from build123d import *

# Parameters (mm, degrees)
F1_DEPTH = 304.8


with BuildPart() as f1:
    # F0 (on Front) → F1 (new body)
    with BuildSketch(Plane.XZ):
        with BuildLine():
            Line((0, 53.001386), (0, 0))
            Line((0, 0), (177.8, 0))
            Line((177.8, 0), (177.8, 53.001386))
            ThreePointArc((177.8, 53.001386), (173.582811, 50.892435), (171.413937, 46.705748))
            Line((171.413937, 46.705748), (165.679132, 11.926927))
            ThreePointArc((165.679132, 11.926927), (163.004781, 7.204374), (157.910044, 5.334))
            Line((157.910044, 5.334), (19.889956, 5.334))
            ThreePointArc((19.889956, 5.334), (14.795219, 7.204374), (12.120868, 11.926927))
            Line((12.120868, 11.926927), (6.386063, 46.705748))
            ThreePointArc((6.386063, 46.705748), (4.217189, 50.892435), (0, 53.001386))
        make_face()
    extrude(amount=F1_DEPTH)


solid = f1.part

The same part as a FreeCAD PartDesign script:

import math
import FreeCAD as App
import Part
import Sketcher
from FreeCAD import Vector
Q = App.Units.Quantity

doc = App.newDocument("Part")
body = doc.addObject("PartDesign::Body", "Body")

# Sketch on XZ plane
sketch1 = doc.addObject("Sketcher::SketchObject", "Sketch")
body.addObject(sketch1)
sketch1.AttachmentSupport = (doc.XZ_Plane, [""])
sketch1.MapMode = "FlatFace"
sketch1.addGeometry(Part.LineSegment(Vector(0, 53.001386, 0), Vector(0, 0, 0)), False)
sketch1.addGeometry(Part.LineSegment(Vector(0, 0, 0), Vector(177.8, 0, 0)), False)
sketch1.addGeometry(Part.LineSegment(Vector(177.8, 0, 0), Vector(177.8, 53.001386, 0)), False)
sketch1.addGeometry(Part.ArcOfCircle(Part.Circle(Vector(178.932409, 45.466, 0), Vector(0, 0, 1), 7.619999), math.radians(98.546386), math.radians(170.63655)), False)
sketch1.addGeometry(Part.LineSegment(Vector(171.413937, 46.705748, 0), Vector(165.679132, 11.926927, 0)), False)
sketch1.addGeometry(Part.ArcOfCircle(Part.Circle(Vector(157.910043, 13.208001, 0), Vector(0, 0, 1), 7.874001), math.radians(-89.999993), math.radians(-9.363459)), False)
sketch1.addGeometry(Part.LineSegment(Vector(157.910044, 5.334, 0), Vector(19.889956, 5.334, 0)), False)
sketch1.addGeometry(Part.ArcOfCircle(Part.Circle(Vector(19.889957, 13.208001, 0), Vector(0, 0, 1), 7.874001), math.radians(-170.636541), math.radians(-90.000007)), False)
sketch1.addGeometry(Part.LineSegment(Vector(12.120868, 11.926927, 0), Vector(6.386063, 46.705748, 0)), False)
sketch1.addGeometry(Part.ArcOfCircle(Part.Circle(Vector(-1.132409, 45.466, 0), Vector(0, 0, 1), 7.619999), math.radians(9.36345), math.radians(81.453614)), False)
sketch1.addConstraint(Sketcher.Constraint("Coincident", 0, 2, 1, 1))
sketch1.addConstraint(Sketcher.Constraint("Coincident", 1, 2, 2, 1))
sketch1.addConstraint(Sketcher.Constraint("Coincident", 2, 2, 3, 1))
sketch1.addConstraint(Sketcher.Constraint("Tangent", 3, 2, 4, 1))
sketch1.addConstraint(Sketcher.Constraint("Tangent", 4, 2, 5, 2))
sketch1.addConstraint(Sketcher.Constraint("Tangent", 5, 1, 6, 1))
sketch1.addConstraint(Sketcher.Constraint("Tangent", 6, 2, 7, 2))
sketch1.addConstraint(Sketcher.Constraint("Tangent", 7, 1, 8, 1))
sketch1.addConstraint(Sketcher.Constraint("Tangent", 8, 2, 9, 1))
sketch1.addConstraint(Sketcher.Constraint("Coincident", 9, 2, 0, 1))
sketch1.addConstraint(Sketcher.Constraint("Vertical", 0))
sketch1.addConstraint(Sketcher.Constraint("Horizontal", 1))
sketch1.addConstraint(Sketcher.Constraint("Vertical", 2))
sketch1.addConstraint(Sketcher.Constraint("Horizontal", 6))
sketch1.addConstraint(Sketcher.Constraint("Coincident", 0, 2, -1, 1))
sketch1.addConstraint(Sketcher.Constraint("Equal", 5, 7))
sketch1.addConstraint(Sketcher.Constraint("Equal", 3, 9))
sketch1.addConstraint(Sketcher.Constraint("Horizontal", 3, 3, 9, 3))
sketch1.addConstraint(Sketcher.Constraint("Horizontal", 4, 2, 7, 1))
sketch1.addConstraint(Sketcher.Constraint("Horizontal", 2, 2, 9, 2))
sketch1.addConstraint(Sketcher.Constraint("Radius", 3, Q("0.3 in")))
sketch1.addConstraint(Sketcher.Constraint("DistanceX", 1, 1, 1, 2, Q("7 in")))
sketch1.addConstraint(Sketcher.Constraint("Radius", 5, Q("0.31 in")))
sketch1.addConstraint(Sketcher.Constraint("DistanceY", -1, 1, 3, 3, Q("1.79 in")))
sketch1.addConstraint(Sketcher.Constraint("DistanceY", -1, 1, 5, 3, Q("0.52 in")))
sketch1.addConstraint(Sketcher.Constraint("DistanceX", 6, 2, 6, 1, Q("138.020088 mm")))
sketch1.addConstraint(Sketcher.Constraint("DistanceY", 0, 2, 0, 1, Q("53.001386 mm")))
pad1 = doc.addObject("PartDesign::Pad", "Pad")
body.addObject(pad1)
pad1.Profile = sketch1
pad1.Length = Q("12 in")

doc.recompute()
